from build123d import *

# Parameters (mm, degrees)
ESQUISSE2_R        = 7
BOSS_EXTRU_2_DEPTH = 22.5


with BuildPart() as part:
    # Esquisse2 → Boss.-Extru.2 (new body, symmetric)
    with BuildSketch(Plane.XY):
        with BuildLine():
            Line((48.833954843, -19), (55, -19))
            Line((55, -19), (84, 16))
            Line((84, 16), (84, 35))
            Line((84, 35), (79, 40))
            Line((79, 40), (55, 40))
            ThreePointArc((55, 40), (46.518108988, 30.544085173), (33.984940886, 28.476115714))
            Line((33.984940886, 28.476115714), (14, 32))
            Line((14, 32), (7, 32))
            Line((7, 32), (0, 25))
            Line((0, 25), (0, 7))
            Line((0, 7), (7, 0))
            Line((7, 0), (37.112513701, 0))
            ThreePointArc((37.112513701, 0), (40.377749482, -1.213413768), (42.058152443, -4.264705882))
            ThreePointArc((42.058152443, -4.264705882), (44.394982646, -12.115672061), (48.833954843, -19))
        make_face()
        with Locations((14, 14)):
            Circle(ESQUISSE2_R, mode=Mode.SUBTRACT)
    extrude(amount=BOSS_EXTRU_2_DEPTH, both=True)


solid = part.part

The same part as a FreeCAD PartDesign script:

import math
import FreeCAD as App
import Part
import Sketcher

V = App.Vector
Q = App.Units.Quantity

doc = App.newDocument("Part")
body = doc.addObject("PartDesign::Body", "Body")

sketch1 = body.newObject("Sketcher::SketchObject", "Sketch")
sketch1.AttachmentSupport = (doc.getObject("XY_Plane"), [""])
sketch1.MapMode = "FlatFace"
sketch1.addGeometry(Part.LineSegment(V(49, -19, 0), V(55, -19, 0)), False)
sketch1.addGeometry(Part.LineSegment(V(55, -19, 0), V(84, 16, 0)), False)
sketch1.addGeometry(Part.LineSegment(V(84, 16, 0), V(84, 35, 0)), False)
sketch1.addGeometry(Part.LineSegment(V(84, 35, 0), V(79, 40, 0)), False)
sketch1.addGeometry(Part.LineSegment(V(79, 40, 0), V(55, 40, 0)), False)
sketch1.addGeometry(Part.ArcOfCircle(Part.Circle(V(37, 47, 0), V(0, 0, 1), 19), math.radians(-100), math.radians(-23)), False)
sketch1.addGeometry(Part.LineSegment(V(34, 28, 0), V(14, 32, 0)), False)
sketch1.addGeometry(Part.LineSegment(V(14, 32, 0), V(7, 32, 0)), False)
sketch1.addGeometry(Part.LineSegment(V(7, 32, 0), V(0, 25, 0)), False)
sketch1.addGeometry(Part.LineSegment(V(0, 25, 0), V(0, 7, 0)), False)
sketch1.addGeometry(Part.LineSegment(V(0, 7, 0), V(7, 0, 0)), False)
sketch1.addGeometry(Part.LineSegment(V(7, 0, 0), V(37, 0, 0)), False)
sketch1.addGeometry(Part.ArcOfCircle(Part.Circle(V(37, -5, 0), V(0, 0, 1), 5), math.radians(8), math.radians(90)), False)
sketch1.addGeometry(Part.ArcOfCircle(Part.Circle(V(71, 0, 0), V(0, 0, 1), 29), math.radians(-172), math.radians(-139)), False)
sketch1.addGeometry(Part.Circle(V(14, 14, 0), V(0, 0, 1), 7), False)
sketch1.addConstraint(Sketcher.Constraint("Coincident", 0, 2, 1, 1))
sketch1.addConstraint(Sketcher.Constraint("Coincident", 1, 2, 2, 1))
sketch1.addConstraint(Sketcher.Constraint("Coincident", 2, 2, 3, 1))
sketch1.addConstraint(Sketcher.Constraint("Coincident", 3, 2, 4, 1))
sketch1.addConstraint(Sketcher.Constraint("Coincident", 4, 2, 5, 2))
sketch1.addConstraint(Sketcher.Constraint("Tangent", 5, 1, 6, 1))
sketch1.addConstraint(Sketcher.Constraint("Coincident", 6, 2, 7, 1))
sketch1.addConstraint(Sketcher.Constraint("Coincident", 7, 2, 8, 1))
sketch1.addConstraint(Sketcher.Constraint("Coincident", 8, 2, 9, 1))
sketch1.addConstraint(Sketcher.Constraint("Coincident", 9, 2, 10, 1))
sketch1.addConstraint(Sketcher.Constraint("Coincident", 10, 2, 11, 1))
sketch1.addConstraint(Sketcher.Constraint("Tangent", 11, 2, 12, 2))
sketch1.addConstraint(Sketcher.Constraint("Tangent", 12, 1, 13, 1))
sketch1.addConstraint(Sketcher.Constraint("Coincident", 13, 2, 0, 1))
sketch1.addConstraint(Sketcher.Constraint("Horizontal", 0))
sketch1.addConstraint(Sketcher.Constraint("Vertical", 2))
sketch1.addConstraint(Sketcher.Constraint("Horizontal", 4))
sketch1.addConstraint(Sketcher.Constraint("Horizontal", 7))
sketch1.addConstraint(Sketcher.Constraint("Vertical", 9))
sketch1.addConstraint(Sketcher.Constraint("Horizontal", 11))
sketch1.addConstraint(Sketcher.Constraint("PointOnObject", 13, 3, -1))
sketch1.addConstraint(Sketcher.Constraint("PointOnObject", 8, 2, -2))
sketch1.addConstraint(Sketcher.Constraint("PointOnObject", 10, 2, -1))
sketch1.addConstraint(Sketcher.Constraint("Perpendicular", 3, 8))
sketch1.addConstraint(Sketcher.Constraint("Perpendicular", 8, 10))
sketch1.addConstraint(Sketcher.Constraint("Vertical", 0, 2, 4, 2))
sketch1.addConstraint(Sketcher.Constraint("Vertical", 14, 3, 6, 2))
sketch1.addConstraint(Sketcher.Constraint("Vertical", 7, 2, 10, 2))
sketch1.addConstraint(Sketcher.Constraint("Equal", 8, 10))
sketch1.addConstraint(Sketcher.Constraint("Diameter", 14, 14.0))
sketch1.addConstraint(Sketcher.Constraint("Radius", 12, 5.0))
sketch1.addConstraint(Sketcher.Constraint("Radius", 13, 29.0))
sketch1.addConstraint(Sketcher.Constraint("DistanceX", 4, 2, 4, 1, 24.0))
sketch1.addConstraint(Sketcher.Constraint("DistanceX", 7, 2, 7, 1, 7.0))
sketch1.addConstraint(Sketcher.Constraint("DistanceY", 2, 1, 2, 2, 19.0))
sketch1.addConstraint(Sketcher.Constraint("DistanceY", 9, 2, 9, 1, 18.0))
sketch1.addConstraint(Sketcher.Constraint("Angle", 6, Q("170 deg")))
sketch1.addConstraint(Sketcher.Constraint("DistanceX", -1, 1, 14, 3, 14.0))
sketch1.addConstraint(Sketcher.Constraint("DistanceY", -1, 1, 14, 3, 14.0))
sketch1.addConstraint(Sketcher.Constraint("DistanceX", -1, 1, 0, 2, 55.0))
sketch1.addConstraint(Sketcher.Constraint("DistanceY", 0, 2, -1, 1, 19.0))
sketch1.addConstraint(Sketcher.Constraint("DistanceX", -1, 1, 1, 2, 84.0))
sketch1.addConstraint(Sketcher.Constraint("DistanceY", -1, 1, 1, 2, 16.0))
sketch1.addConstraint(Sketcher.Constraint("Radius", 5, 19.15026))
sketch1.addConstraint(Sketcher.Constraint("DistanceX", 0, 1, 0, 2, 6.166045))
pad1 = body.newObject("PartDesign::Pad", "Pad")
pad1.Profile = sketch1
pad1.Length = 45
pad1.Midplane = True

doc.recompute()
